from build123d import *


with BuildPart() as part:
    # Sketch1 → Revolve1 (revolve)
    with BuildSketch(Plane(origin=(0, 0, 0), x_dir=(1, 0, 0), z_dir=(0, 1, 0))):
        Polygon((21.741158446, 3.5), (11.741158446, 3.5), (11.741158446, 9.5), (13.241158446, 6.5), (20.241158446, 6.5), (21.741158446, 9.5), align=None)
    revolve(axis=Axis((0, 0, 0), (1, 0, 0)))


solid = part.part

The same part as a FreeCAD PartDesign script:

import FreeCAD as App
import Part
import Sketcher
from FreeCAD import Vector
Q = App.Units.Quantity

doc = App.newDocument("Part")
params = doc.addObject("Spreadsheet::Sheet", "Params")
for row, (alias, value) in enumerate([
    ("sketch1_width", "10 mm"),
    ("sketch1_width2", "7 mm"),
    ("sketch1_height", "6 mm"),
    ("revolution_angle", "360 deg"),
], start=1):
    params.set(f"A{row}", alias)
    params.set(f"B{row}", "=" + value)
    params.setAlias(f"B{row}", alias)

body = doc.addObject("PartDesign::Body", "Body")

# Sketch on XZ plane
sketch1 = body.newObject("Sketcher::SketchObject", "Sketch")
sketch1.AttachmentSupport = (doc.getObject("XZ_Plane"), [""])
sketch1.MapMode = "FlatFace"
sketch1.addGeometry([
    Part.LineSegment(Vector(11.7, -3.5, 0), Vector(21.7, -3.5, 0)),  # 0
    Part.LineSegment(Vector(21.7, -3.5, 0), Vector(21.7, -9.5, 0)),  # 1
    Part.LineSegment(Vector(21.7, -9.5, 0), Vector(20.2, -6.5, 0)),  # 2
    Part.LineSegment(Vector(20.2, -6.5, 0), Vector(13.2, -6.5, 0)),  # 3
    Part.LineSegment(Vector(13.2, -6.5, 0), Vector(11.7, -9.5, 0)),  # 4
    Part.LineSegment(Vector(11.7, -9.5, 0), Vector(11.7, -3.5, 0)),  # 5
], False)
sketch1.addConstraint([
    Sketcher.Constraint("Coincident", 0, 2, 1, 1),
    Sketcher.Constraint("Coincident", 1, 2, 2, 1),
    Sketcher.Constraint("Coincident", 2, 2, 3, 1),
    Sketcher.Constraint("Coincident", 3, 2, 4, 1),
    Sketcher.Constraint("Coincident", 4, 2, 5, 1),
    Sketcher.Constraint("Coincident", 5, 2, 0, 1),
    Sketcher.Constraint("Horizontal", 0),
    Sketcher.Constraint("Vertical", 1),
    Sketcher.Constraint("Horizontal", 3),
    Sketcher.Constraint("Vertical", 5),
    Sketcher.Constraint("Horizontal", 1, 2, 4, 2),
    Sketcher.Constraint("Equal", 2, 4),
    Sketcher.Constraint("DistanceX", 0, 1, 0, 2, Q("10 mm")),
    Sketcher.Constraint("DistanceX", 3, 2, 3, 1, Q("7 mm")),
    Sketcher.Constraint("DistanceY", 1, 2, 1, 1, Q("6 mm")),
    Sketcher.Constraint("DistanceY", 2, 2, 0, 2, Q("3 mm")),
    Sketcher.Constraint("DistanceY", 0, 2, -1, 1, Q("3.5 mm")),
    Sketcher.Constraint("DistanceX", -1, 1, 0, 2, Q("21.741158 mm")),
])
sketch1.setExpression("Constraints[12]", "Params.sketch1_width")
sketch1.setExpression("Constraints[13]", "Params.sketch1_width2")
sketch1.setExpression("Constraints[14]", "Params.sketch1_height")
revolution = body.newObject("PartDesign::Revolution", "Revolution")
revolution.Profile = sketch1
revolution.ReferenceAxis = (sketch1, ["H_Axis"])
revolution.setExpression("Angle", "Params.revolution_angle")

doc.recompute()
